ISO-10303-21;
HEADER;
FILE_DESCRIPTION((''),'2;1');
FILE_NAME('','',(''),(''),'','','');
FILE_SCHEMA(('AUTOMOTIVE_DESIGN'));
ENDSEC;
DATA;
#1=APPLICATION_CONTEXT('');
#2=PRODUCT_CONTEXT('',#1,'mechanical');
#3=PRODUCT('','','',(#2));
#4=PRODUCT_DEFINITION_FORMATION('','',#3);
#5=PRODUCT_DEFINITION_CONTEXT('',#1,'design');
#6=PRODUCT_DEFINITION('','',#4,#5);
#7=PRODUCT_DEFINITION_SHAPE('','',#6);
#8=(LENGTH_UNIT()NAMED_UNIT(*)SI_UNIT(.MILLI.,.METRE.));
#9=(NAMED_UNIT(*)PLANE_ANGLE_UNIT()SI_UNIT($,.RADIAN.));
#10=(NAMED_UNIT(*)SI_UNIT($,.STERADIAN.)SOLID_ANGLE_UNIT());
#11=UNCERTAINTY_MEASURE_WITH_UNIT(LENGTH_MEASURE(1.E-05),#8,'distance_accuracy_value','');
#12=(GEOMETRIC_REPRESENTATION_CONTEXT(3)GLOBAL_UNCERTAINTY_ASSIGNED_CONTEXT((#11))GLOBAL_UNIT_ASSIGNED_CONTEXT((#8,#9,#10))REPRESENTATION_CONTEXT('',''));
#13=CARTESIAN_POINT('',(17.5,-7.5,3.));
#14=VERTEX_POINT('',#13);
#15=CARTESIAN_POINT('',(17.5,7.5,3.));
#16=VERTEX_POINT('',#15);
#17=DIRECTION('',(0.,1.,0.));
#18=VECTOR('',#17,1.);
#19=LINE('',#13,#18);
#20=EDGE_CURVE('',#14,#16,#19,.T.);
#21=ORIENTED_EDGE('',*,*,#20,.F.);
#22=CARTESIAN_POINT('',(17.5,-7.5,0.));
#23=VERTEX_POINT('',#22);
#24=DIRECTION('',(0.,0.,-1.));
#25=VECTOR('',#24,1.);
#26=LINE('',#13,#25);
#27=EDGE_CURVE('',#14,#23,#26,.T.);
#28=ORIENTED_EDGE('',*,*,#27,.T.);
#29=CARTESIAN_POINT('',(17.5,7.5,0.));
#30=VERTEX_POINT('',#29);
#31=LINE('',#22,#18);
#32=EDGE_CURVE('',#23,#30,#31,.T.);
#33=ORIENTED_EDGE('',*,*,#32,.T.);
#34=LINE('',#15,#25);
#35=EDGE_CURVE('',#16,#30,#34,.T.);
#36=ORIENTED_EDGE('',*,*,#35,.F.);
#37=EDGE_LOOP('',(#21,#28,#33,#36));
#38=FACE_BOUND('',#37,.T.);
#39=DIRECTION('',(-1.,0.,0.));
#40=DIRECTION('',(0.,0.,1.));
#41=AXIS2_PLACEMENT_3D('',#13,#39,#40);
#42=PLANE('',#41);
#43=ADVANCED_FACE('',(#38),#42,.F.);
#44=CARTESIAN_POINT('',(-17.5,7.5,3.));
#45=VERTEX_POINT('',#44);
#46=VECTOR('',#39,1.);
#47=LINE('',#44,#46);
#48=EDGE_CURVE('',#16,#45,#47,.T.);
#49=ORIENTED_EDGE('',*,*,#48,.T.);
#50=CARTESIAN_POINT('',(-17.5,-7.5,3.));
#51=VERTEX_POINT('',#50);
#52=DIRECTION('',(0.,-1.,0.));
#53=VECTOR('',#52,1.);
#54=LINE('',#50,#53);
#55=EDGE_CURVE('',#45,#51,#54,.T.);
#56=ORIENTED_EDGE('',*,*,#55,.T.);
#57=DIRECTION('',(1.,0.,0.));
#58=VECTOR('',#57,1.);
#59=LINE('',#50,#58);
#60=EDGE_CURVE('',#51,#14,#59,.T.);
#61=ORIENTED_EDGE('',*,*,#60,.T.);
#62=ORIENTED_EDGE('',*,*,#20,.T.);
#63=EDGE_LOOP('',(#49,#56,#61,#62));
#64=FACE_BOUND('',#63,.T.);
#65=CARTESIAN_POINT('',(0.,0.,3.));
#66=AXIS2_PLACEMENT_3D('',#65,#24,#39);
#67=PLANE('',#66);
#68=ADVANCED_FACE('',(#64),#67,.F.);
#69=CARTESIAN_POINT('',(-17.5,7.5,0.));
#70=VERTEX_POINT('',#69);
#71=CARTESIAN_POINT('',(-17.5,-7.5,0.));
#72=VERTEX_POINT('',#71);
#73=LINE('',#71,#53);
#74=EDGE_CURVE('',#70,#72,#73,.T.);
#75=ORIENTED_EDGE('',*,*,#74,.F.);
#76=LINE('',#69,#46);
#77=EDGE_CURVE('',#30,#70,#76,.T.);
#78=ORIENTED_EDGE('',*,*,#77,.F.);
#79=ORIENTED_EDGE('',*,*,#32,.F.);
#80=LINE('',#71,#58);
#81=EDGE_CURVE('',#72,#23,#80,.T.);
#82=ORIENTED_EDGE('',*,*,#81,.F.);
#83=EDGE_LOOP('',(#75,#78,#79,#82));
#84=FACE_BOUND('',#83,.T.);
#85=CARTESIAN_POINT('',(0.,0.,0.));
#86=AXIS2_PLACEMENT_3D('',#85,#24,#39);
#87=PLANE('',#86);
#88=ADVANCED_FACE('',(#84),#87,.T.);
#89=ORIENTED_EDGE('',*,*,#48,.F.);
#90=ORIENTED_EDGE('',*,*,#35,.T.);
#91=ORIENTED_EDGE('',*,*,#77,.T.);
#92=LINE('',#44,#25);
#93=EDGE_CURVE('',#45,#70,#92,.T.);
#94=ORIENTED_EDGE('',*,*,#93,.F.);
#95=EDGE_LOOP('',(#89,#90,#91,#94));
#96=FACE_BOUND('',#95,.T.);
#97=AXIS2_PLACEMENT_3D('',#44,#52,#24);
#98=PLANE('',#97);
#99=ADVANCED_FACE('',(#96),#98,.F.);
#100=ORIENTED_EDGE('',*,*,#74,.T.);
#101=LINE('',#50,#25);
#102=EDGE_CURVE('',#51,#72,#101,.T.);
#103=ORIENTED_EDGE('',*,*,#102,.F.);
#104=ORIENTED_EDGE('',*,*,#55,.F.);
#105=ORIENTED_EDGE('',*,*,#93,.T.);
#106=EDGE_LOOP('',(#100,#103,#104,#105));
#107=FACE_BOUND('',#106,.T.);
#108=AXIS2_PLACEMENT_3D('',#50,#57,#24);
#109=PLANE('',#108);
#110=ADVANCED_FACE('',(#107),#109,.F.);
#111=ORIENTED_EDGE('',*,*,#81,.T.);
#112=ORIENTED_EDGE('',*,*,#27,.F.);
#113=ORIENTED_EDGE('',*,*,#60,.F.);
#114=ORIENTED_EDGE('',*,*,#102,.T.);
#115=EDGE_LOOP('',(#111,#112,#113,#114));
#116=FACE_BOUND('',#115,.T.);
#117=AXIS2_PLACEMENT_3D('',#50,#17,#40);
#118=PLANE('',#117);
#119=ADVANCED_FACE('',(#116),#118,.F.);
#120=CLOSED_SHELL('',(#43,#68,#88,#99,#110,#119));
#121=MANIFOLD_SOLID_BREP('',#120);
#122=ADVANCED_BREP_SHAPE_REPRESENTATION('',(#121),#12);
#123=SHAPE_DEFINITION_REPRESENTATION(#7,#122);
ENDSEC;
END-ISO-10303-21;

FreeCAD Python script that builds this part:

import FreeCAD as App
import Part
import Sketcher
Q = App.Units.Quantity

doc = App.newDocument("Part")
body = doc.addObject("PartDesign::Body", "Body")

# Sketch on XY plane
sketch1 = body.newObject("Sketcher::SketchObject", "Sketch")
sketch1.AttachmentSupport = (doc.getObject("XY_Plane"), [""])
sketch1.MapMode = "FlatFace"
sketch1.addGeometry([
    Part.LineSegment(App.Vector(-17.5, 7.5, 0), App.Vector(-17.5, -7.5, 0)),
    Part.LineSegment(App.Vector(-17.5, -7.5, 0), App.Vector(17.5, -7.5, 0)),
    Part.LineSegment(App.Vector(17.5, -7.5, 0), App.Vector(17.5, 7.5, 0)),
    Part.LineSegment(App.Vector(17.5, 7.5, 0), App.Vector(-17.5, 7.5, 0)),
], False)
sketch1.addConstraint([
    Sketcher.Constraint("Coincident", 0, 2, 1, 1),
    Sketcher.Constraint("Coincident", 1, 2, 2, 1),
    Sketcher.Constraint("Coincident", 2, 2, 3, 1),
    Sketcher.Constraint("Coincident", 3, 2, 0, 1),
    Sketcher.Constraint("Vertical", 0),
    Sketcher.Constraint("Horizontal", 1),
    Sketcher.Constraint("Vertical", 2),
    Sketcher.Constraint("Horizontal", 3),
    Sketcher.Constraint("Symmetric", 0, 2, 2, 2, -1, 1),
    Sketcher.Constraint("DistanceX", 1, 1, 1, 2, Q("35 mm")),
    Sketcher.Constraint("DistanceY", 0, 2, 0, 1, Q("15 mm")),
])
pad1 = body.newObject("PartDesign::Pad", "Pad")
pad1.Profile = sketch1
pad1.Length = 3

doc.recompute()
